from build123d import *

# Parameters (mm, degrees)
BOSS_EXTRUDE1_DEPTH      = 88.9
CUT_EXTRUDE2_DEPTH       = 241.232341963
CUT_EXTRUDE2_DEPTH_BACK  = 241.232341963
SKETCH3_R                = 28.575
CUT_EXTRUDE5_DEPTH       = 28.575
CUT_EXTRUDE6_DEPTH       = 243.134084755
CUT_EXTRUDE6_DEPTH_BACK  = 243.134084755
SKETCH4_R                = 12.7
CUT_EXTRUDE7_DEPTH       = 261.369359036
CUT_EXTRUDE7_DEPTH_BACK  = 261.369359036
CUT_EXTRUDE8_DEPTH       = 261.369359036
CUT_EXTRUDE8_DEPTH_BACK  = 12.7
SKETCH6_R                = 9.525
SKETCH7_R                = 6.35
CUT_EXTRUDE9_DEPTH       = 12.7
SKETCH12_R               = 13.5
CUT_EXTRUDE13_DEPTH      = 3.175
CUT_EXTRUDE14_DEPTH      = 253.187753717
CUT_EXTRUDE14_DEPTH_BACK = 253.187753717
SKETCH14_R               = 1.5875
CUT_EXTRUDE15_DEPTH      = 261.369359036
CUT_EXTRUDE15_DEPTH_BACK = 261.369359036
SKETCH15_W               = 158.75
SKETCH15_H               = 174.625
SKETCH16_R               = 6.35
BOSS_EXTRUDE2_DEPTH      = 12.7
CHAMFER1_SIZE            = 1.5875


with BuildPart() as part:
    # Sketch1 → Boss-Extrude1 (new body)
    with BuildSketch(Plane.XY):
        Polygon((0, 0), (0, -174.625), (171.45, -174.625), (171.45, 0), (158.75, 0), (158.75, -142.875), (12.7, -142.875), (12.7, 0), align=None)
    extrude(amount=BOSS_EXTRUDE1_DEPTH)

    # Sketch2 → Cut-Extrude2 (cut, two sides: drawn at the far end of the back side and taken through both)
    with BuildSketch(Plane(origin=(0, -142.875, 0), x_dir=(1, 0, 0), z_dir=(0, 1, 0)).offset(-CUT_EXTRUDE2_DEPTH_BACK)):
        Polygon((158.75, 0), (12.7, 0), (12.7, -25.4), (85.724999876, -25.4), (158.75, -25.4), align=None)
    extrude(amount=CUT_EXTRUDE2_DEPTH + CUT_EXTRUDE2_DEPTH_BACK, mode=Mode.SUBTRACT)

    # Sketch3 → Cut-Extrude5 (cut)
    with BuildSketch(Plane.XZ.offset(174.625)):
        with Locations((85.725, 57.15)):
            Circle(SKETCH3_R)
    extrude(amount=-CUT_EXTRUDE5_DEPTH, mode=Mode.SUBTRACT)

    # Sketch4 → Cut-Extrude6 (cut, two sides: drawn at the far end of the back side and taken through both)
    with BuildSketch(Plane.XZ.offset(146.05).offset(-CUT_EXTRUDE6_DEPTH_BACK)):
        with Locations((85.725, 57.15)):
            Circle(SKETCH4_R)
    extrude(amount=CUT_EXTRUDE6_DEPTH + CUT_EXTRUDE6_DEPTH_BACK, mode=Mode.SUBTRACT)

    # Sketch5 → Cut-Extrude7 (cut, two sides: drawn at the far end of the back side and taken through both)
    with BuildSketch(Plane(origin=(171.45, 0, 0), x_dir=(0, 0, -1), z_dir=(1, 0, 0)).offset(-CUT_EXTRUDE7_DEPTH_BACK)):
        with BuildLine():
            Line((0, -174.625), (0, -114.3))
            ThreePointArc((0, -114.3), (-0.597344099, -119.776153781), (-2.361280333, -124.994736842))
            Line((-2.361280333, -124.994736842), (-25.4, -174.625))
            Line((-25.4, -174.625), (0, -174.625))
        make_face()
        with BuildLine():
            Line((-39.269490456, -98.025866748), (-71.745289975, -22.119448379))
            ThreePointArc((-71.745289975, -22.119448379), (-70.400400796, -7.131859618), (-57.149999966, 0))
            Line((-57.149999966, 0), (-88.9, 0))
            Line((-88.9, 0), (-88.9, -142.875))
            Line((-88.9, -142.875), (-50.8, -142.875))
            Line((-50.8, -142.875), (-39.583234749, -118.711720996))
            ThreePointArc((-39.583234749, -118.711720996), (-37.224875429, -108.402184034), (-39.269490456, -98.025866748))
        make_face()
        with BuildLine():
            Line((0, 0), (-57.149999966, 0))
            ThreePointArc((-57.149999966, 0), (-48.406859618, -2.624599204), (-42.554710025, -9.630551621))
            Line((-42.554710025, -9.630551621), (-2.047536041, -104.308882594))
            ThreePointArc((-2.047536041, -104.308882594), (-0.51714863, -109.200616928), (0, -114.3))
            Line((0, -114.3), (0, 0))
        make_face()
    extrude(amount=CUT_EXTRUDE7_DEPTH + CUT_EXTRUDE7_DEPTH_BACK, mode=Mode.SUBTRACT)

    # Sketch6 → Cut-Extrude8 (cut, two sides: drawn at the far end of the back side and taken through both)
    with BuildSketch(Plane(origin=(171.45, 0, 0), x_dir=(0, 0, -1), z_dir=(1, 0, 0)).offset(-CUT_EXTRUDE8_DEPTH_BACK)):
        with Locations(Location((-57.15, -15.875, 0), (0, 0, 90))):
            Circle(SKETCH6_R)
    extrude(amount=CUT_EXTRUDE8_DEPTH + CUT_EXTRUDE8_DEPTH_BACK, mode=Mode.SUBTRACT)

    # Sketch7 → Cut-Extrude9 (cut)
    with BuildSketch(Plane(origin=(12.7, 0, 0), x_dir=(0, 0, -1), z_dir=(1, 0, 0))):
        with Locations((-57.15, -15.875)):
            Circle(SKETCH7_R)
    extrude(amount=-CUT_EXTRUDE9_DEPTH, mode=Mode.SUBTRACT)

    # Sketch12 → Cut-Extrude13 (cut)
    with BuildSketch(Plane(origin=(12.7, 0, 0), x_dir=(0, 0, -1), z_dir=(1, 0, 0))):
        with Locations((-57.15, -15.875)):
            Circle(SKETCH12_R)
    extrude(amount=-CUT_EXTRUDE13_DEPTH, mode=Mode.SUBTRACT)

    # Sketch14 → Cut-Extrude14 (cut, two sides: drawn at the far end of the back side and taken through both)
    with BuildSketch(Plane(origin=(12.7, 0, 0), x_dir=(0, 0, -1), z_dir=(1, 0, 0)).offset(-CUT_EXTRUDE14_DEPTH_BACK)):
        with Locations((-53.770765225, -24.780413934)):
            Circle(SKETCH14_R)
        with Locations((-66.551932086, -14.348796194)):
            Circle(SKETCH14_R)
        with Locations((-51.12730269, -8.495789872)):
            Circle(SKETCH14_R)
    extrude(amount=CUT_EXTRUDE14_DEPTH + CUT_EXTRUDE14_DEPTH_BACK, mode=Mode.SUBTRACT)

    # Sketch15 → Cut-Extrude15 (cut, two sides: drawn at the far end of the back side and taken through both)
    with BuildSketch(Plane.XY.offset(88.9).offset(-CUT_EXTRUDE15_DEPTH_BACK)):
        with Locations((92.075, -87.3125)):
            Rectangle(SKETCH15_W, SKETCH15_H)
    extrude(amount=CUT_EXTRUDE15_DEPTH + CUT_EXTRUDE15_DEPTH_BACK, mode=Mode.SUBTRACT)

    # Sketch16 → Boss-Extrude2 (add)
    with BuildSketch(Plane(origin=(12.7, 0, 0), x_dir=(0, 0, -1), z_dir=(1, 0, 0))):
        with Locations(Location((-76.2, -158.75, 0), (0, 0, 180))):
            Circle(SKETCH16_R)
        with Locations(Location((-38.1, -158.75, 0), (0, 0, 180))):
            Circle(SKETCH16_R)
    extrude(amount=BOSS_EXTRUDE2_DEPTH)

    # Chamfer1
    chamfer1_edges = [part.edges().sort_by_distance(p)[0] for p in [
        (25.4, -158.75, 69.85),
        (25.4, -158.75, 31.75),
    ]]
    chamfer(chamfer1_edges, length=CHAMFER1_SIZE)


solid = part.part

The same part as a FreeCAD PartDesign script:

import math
import FreeCAD as App
import Part
import Sketcher
Q = App.Units.Quantity


def edges_at(feature, points):
    """Names of the edges that pass closest to the given points."""
    edges = feature.Shape.Edges
    near = lambda p: min(range(len(edges)), key=lambda i: edges[i].distToShape(Part.Vertex(*p))[0])
    return sorted({f"Edge{near(p) + 1}" for p in points})

doc = App.newDocument("Part")
params = doc.addObject("Spreadsheet::Sheet", "Params")
for row, (alias, value) in enumerate([
    ("sketch1_width", "0.5 in"),
    ("sketch1_width2", "6.75 in"),
    ("sketch1_height", "6.875 in"),
    ("sketch1_height2", "5.625 in"),
    ("pad1_length", "3.5 in"),
    ("sketch2_height", "1 in"),
    ("sketch2_width", "5.75 in"),
    ("sketch3_diameter", "2.25 in"),
    ("pocket2_length", "1.125 in"),
    ("sketch4_diameter", "1 in"),
    ("sketch5_radius", "1 in"),
    ("sketch5_width", "4.5 in"),
    ("sketch5_height", "1.5 in"),
    ("sketch5_radius2", "0.625 in"),
    ("sketch5_height2", "1.25 in"),
    ("sketch6_diameter", "0.75 in"),
    ("pocket5_length", "261.369359 mm"),
    ("pocket5_length2", "0.5 in"),
    ("sketch7_diameter", "0.5 in"),
    ("pocket6_length", "0.5 in"),
    ("pocket7_length", "0.125 in"),
    ("sketch9_diameter", "0.125 in"),
    ("sketch10_width", "6.25 in"),
    ("sketch10_height", "6.875 in"),
    ("sketch11_diameter", "0.5 in"),
    ("pad2_length", "0.5 in"),
    ("chamfer_size", "0.0625 in"),
], start=1):
    params.set(f"A{row}", alias)
    params.set(f"B{row}", "=" + value)
    params.setAlias(f"B{row}", alias)

body = doc.addObject("PartDesign::Body", "Body")

# Sketch on XY plane
sketch1 = body.newObject("Sketcher::SketchObject", "Sketch")
sketch1.AttachmentSupport = (doc.getObject("XY_Plane"), [""])
sketch1.MapMode = "FlatFace"
sketch1.addGeometry([
    Part.LineSegment(App.Vector(0, 0, 0), App.Vector(0, -175, 0)),  # 0
    Part.LineSegment(App.Vector(0, -175, 0), App.Vector(171, -175, 0)),  # 1
    Part.LineSegment(App.Vector(171, -175, 0), App.Vector(171, 0, 0)),  # 2
    Part.LineSegment(App.Vector(171, 0, 0), App.Vector(159, 0, 0)),  # 3
    Part.LineSegment(App.Vector(159, 0, 0), App.Vector(159, -143, 0)),  # 4
    Part.LineSegment(App.Vector(159, -143, 0), App.Vector(13, -143, 0)),  # 5
    Part.LineSegment(App.Vector(13, -143, 0), App.Vector(13, 0, 0)),  # 6
    Part.LineSegment(App.Vector(13, 0, 0), App.Vector(0, 0, 0)),  # 7
], False)
sketch1.addConstraint([
    Sketcher.Constraint("Coincident", 0, 2, 1, 1),
    Sketcher.Constraint("Coincident", 1, 2, 2, 1),
    Sketcher.Constraint("Coincident", 2, 2, 3, 1),
    Sketcher.Constraint("Coincident", 3, 2, 4, 1),
    Sketcher.Constraint("Coincident", 4, 2, 5, 1),
    Sketcher.Constraint("Coincident", 5, 2, 6, 1),
    Sketcher.Constraint("Coincident", 6, 2, 7, 1),
    Sketcher.Constraint("Coincident", 7, 2, 0, 1),
    Sketcher.Constraint("Vertical", 0),
    Sketcher.Constraint("Horizontal", 1),
    Sketcher.Constraint("Vertical", 2),
    Sketcher.Constraint("Horizontal", 3),
    Sketcher.Constraint("Vertical", 4),
    Sketcher.Constraint("Horizontal", 5),
    Sketcher.Constraint("Vertical", 6),
    Sketcher.Constraint("Horizontal", 7),
    Sketcher.Constraint("Coincident", 7, 2, -1, 1),
    Sketcher.Constraint("PointOnObject", 2, 2, -1),
    Sketcher.Constraint("Equal", 3, 7),
    Sketcher.Constraint("DistanceX", 3, 2, 3, 1, Q("0.5 in")),
    Sketcher.Constraint("DistanceX", 1, 1, 1, 2, Q("6.75 in")),
    Sketcher.Constraint("DistanceY", 0, 2, 0, 1, Q("6.875 in")),
    Sketcher.Constraint("DistanceY", 4, 2, 4, 1, Q("5.625 in")),
])
sketch1.setExpression("Constraints[19]", "Params.sketch1_width")
sketch1.setExpression("Constraints[20]", "Params.sketch1_width2")
sketch1.setExpression("Constraints[21]", "Params.sketch1_height")
sketch1.setExpression("Constraints[22]", "Params.sketch1_height2")
pad1 = body.newObject("PartDesign::Pad", "Pad")
pad1.Profile = sketch1
pad1.setExpression("Length", "Params.pad1_length")

# Sketch on XZ plane
sketch2 = body.newObject("Sketcher::SketchObject", "Sketch001")
sketch2.AttachmentSupport = (doc.getObject("XZ_Plane"), [""])
sketch2.MapMode = "FlatFace"
sketch2.AttachmentOffset = App.Placement(App.Vector(0, 0, 5.625 * 25.4), App.Rotation())
sketch2.addGeometry([
    Part.LineSegment(App.Vector(159, 0, 0), App.Vector(13, 0, 0)),
    Part.LineSegment(App.Vector(13, 0, 0), App.Vector(13, 25, 0)),
    Part.LineSegment(App.Vector(13, 25, 0), App.Vector(159, 25, 0)),
    Part.LineSegment(App.Vector(159, 25, 0), App.Vector(159, 0, 0)),
], False)
sketch2.addConstraint([
    Sketcher.Constraint("Coincident", 0, 2, 1, 1),
    Sketcher.Constraint("Coincident", 1, 2, 2, 1),
    Sketcher.Constraint("Coincident", 2, 2, 3, 1),
    Sketcher.Constraint("Coincident", 3, 2, 0, 1),
    Sketcher.Constraint("Horizontal", 0),
    Sketcher.Constraint("Vertical", 1),
    Sketcher.Constraint("Horizontal", 2),
    Sketcher.Constraint("Vertical", 3),
    Sketcher.Constraint("PointOnObject", 0, 2, -1),
    Sketcher.Constraint("DistanceY", 1, 1, 1, 2, Q("1 in")),
    Sketcher.Constraint("DistanceX", 0, 2, 0, 1, Q("5.75 in")),
    Sketcher.Constraint("DistanceX", -1, 1, 0, 2, Q("0.5 in")),
])
sketch2.setExpression("Constraints[9]", "Params.sketch2_height")
sketch2.setExpression("Constraints[10]", "Params.sketch2_width")
pocket1 = body.newObject("PartDesign::Pocket", "Pocket")
pocket1.Profile = sketch2
pocket1.Type = "ThroughAll"
pocket1.Midplane = True

# Sketch on XZ plane
sketch3 = body.newObject("Sketcher::SketchObject", "Sketch002")
sketch3.AttachmentSupport = (doc.getObject("XZ_Plane"), [""])
sketch3.MapMode = "FlatFace"
sketch3.AttachmentOffset = App.Placement(App.Vector(0, 0, 6.875 * 25.4), App.Rotation())
sketch3.addGeometry(Part.Circle(App.Vector(86, 57, 0), App.Vector(0, 0, 1), 29), False)
sketch3.addConstraint([
    Sketcher.Constraint("Diameter", 0, Q("2.25 in")),
    Sketcher.Constraint("DistanceY", -1, 1, 0, 3, Q("2.25 in")),
    Sketcher.Constraint("DistanceX", -1, 1, 0, 3, Q("3.375 in")),
])
sketch3.setExpression("Constraints[0]", "Params.sketch3_diameter")
pocket2 = body.newObject("PartDesign::Pocket", "Pocket001")
pocket2.Profile = sketch3
pocket2.setExpression("Length", "Params.pocket2_length")

# Sketch on XZ plane
sketch4 = body.newObject("Sketcher::SketchObject", "Sketch003")
sketch4.AttachmentSupport = (doc.getObject("XZ_Plane"), [""])
sketch4.MapMode = "FlatFace"
sketch4.AttachmentOffset = App.Placement(App.Vector(0, 0, 5.75 * 25.4), App.Rotation())
sketch4.addGeometry(Part.Circle(App.Vector(86, 57, 0), App.Vector(0, 0, 1), 13), False)
sketch4.addConstraint([
    Sketcher.Constraint("Diameter", 0, Q("1 in")),
    Sketcher.Constraint("DistanceY", -1, 1, 0, 3, Q("2.25 in")),
    Sketcher.Constraint("DistanceX", -1, 1, 0, 3, Q("3.375 in")),
])
sketch4.setExpression("Constraints[0]", "Params.sketch4_diameter")
pocket3 = body.newObject("PartDesign::Pocket", "Pocket002")
pocket3.Profile = sketch4
pocket3.Type = "ThroughAll"
pocket3.Midplane = True

# Sketch on YZ plane
sketch5 = body.newObject("Sketcher::SketchObject", "Sketch004")
sketch5.AttachmentSupport = (doc.getObject("YZ_Plane"), [""])
sketch5.MapMode = "FlatFace"
sketch5.AttachmentOffset = App.Placement(App.Vector(0, 0, 6.75 * 25.4), App.Rotation())
sketch5.addGeometry([
    Part.LineSegment(App.Vector(-175, 0, 0), App.Vector(-114, 0, 0)),  # 0
    Part.ArcOfCircle(Part.Circle(App.Vector(-114, 25, 0), App.Vector(0, 0, 1), 25), math.radians(-115), math.radians(-90)),  # 1
    Part.LineSegment(App.Vector(-125, 2, 0), App.Vector(-175, 25, 0)),  # 2
    Part.LineSegment(App.Vector(-175, 25, 0), App.Vector(-175, 0, 0)),  # 3
    Part.LineSegment(App.Vector(-98, 39, 0), App.Vector(-22, 72, 0)),  # 4
    Part.ArcOfCircle(Part.Circle(App.Vector(-16, 57, 0), App.Vector(0, 0, 1), 16), math.radians(0), math.radians(113)),  # 5
    Part.LineSegment(App.Vector(0, 57, 0), App.Vector(0, 89, 0)),  # 6
    Part.LineSegment(App.Vector(0, 89, 0), App.Vector(-143, 89, 0)),  # 7
    Part.LineSegment(App.Vector(-143, 89, 0), App.Vector(-143, 51, 0)),  # 8
    Part.LineSegment(App.Vector(-143, 51, 0), App.Vector(-119, 40, 0)),  # 9
    Part.ArcOfCircle(Part.Circle(App.Vector(-108, 63, 0), App.Vector(0, 0, 1), 25), math.radians(-115), math.radians(-67)),  # 10
    Part.LineSegment(App.Vector(0, 0, 0), App.Vector(0, 57, 0)),  # 11
    Part.ArcOfCircle(Part.Circle(App.Vector(-16, 57, 0), App.Vector(0, 0, 1), 16), math.radians(-67), math.radians(0)),  # 12
    Part.LineSegment(App.Vector(-10, 43, 0), App.Vector(-104, 2, 0)),  # 13
    Part.ArcOfCircle(Part.Circle(App.Vector(-114, 25, 0), App.Vector(0, 0, 1), 25), math.radians(-90), math.radians(-67)),  # 14
    Part.LineSegment(App.Vector(-114, 0, 0), App.Vector(0, 0, 0)),  # 15
], False)
sketch5.addConstraint([
    Sketcher.Constraint("Tangent", 0, 2, 1, 2),
    Sketcher.Constraint("Tangent", 1, 1, 2, 1),
    Sketcher.Constraint("Coincident", 2, 2, 3, 1),
    Sketcher.Constraint("Coincident", 3, 2, 0, 1),
    Sketcher.Constraint("Tangent", 4, 2, 5, 2),
    Sketcher.Constraint("Tangent", 5, 1, 6, 1),
    Sketcher.Constraint("Coincident", 6, 2, 7, 1),
    Sketcher.Constraint("Coincident", 7, 2, 8, 1),
    Sketcher.Constraint("Coincident", 8, 2, 9, 1),
    Sketcher.Constraint("Tangent", 9, 2, 10, 1),
    Sketcher.Constraint("Tangent", 10, 2, 4, 1),
    Sketcher.Constraint("Tangent", 11, 2, 12, 2),
    Sketcher.Constraint("Tangent", 12, 1, 13, 1),
    Sketcher.Constraint("Tangent", 13, 2, 14, 2),
    Sketcher.Constraint("Tangent", 14, 1, 15, 1),
    Sketcher.Constraint("Coincident", 15, 2, 11, 1),
    Sketcher.Constraint("Horizontal", 0),
    Sketcher.Constraint("Vertical", 3),
    Sketcher.Constraint("Vertical", 6),
    Sketcher.Constraint("Horizontal", 7),
    Sketcher.Constraint("Vertical", 8),
    Sketcher.Constraint("Vertical", 11),
    Sketcher.Constraint("Horizontal", 15),
    Sketcher.Constraint("Coincident", 15, 2, -1, 1),
    Sketcher.Constraint("Coincident", 12, 3, 5, 3),
    Sketcher.Constraint("Coincident", 14, 3, 1, 3),
    Sketcher.Constraint("Equal", 1, 10),
    Sketcher.Constraint("Equal", 5, 12),
    Sketcher.Constraint("Equal", 10, 14),
    Sketcher.Constraint("Parallel", 2, 9),
    Sketcher.Constraint("Parallel", 4, 13),
    Sketcher.Constraint("Horizontal", 14, 3, 2, 2),
    Sketcher.Constraint("Radius", 1, Q("1 in")),
    Sketcher.Constraint("DistanceX", 15, 1, 15, 2, Q("4.5 in")),
    Sketcher.Constraint("DistanceY", 8, 2, 8, 1, Q("1.5 in")),
    Sketcher.Constraint("DistanceY", -1, 1, 8, 2, Q("2 in")),
    Sketcher.Constraint("Radius", 5, Q("0.625 in")),
    Sketcher.Constraint("DistanceY", 6, 1, 6, 2, Q("1.25 in")),
    Sketcher.Constraint("DistanceX", 0, 1, 0, 2, Q("2.375 in")),
    Sketcher.Constraint("DistanceX", 7, 2, 7, 1, Q("5.625 in")),
])
sketch5.setExpression("Constraints[32]", "Params.sketch5_radius")
sketch5.setExpression("Constraints[33]", "Params.sketch5_width")
sketch5.setExpression("Constraints[34]", "Params.sketch5_height")
sketch5.setExpression("Constraints[36]", "Params.sketch5_radius2")
sketch5.setExpression("Constraints[37]", "Params.sketch5_height2")
pocket4 = body.newObject("PartDesign::Pocket", "Pocket003")
pocket4.Profile = sketch5
pocket4.Type = "ThroughAll"
pocket4.Midplane = True

# Sketch on YZ plane
sketch6 = body.newObject("Sketcher::SketchObject", "Sketch005")
sketch6.AttachmentSupport = (doc.getObject("YZ_Plane"), [""])
sketch6.MapMode = "FlatFace"
sketch6.AttachmentOffset = App.Placement(App.Vector(0, 0, 6.75 * 25.4), App.Rotation())
sketch6.addGeometry(Part.Circle(App.Vector(-16, 57, 0), App.Vector(0, 0, 1), 10), False)
sketch6.addConstraint([
    Sketcher.Constraint("Diameter", 0, Q("0.75 in")),
    Sketcher.Constraint("DistanceY", -1, 1, 0, 3, Q("2.25 in")),
    Sketcher.Constraint("DistanceX", 0, 3, -1, 1, Q("0.625 in")),
])
sketch6.setExpression("Constraints[0]", "Params.sketch6_diameter")
pocket5 = body.newObject("PartDesign::Pocket", "Pocket004")
pocket5.Profile = sketch6
pocket5.Type = "TwoLengths"
pocket5.setExpression("Length", "Params.pocket5_length")
pocket5.setExpression("Length2", "Params.pocket5_length2")
pocket5.Reversed = True

# Sketch on YZ plane
sketch7 = body.newObject("Sketcher::SketchObject", "Sketch006")
sketch7.AttachmentSupport = (doc.getObject("YZ_Plane"), [""])
sketch7.MapMode = "FlatFace"
sketch7.AttachmentOffset = App.Placement(App.Vector(0, 0, 0.5 * 25.4), App.Rotation())
sketch7.addGeometry(Part.Circle(App.Vector(-16, 57, 0), App.Vector(0, 0, 1), 6), False)
sketch7.addConstraint([
    Sketcher.Constraint("Diameter", 0, Q("0.5 in")),
    Sketcher.Constraint("DistanceY", -1, 1, 0, 3, Q("2.25 in")),
    Sketcher.Constraint("DistanceX", 0, 3, -1, 1, Q("0.625 in")),
])
sketch7.setExpression("Constraints[0]", "Params.sketch7_diameter")
pocket6 = body.newObject("PartDesign::Pocket", "Pocket005")
pocket6.Profile = sketch7
pocket6.setExpression("Length", "Params.pocket6_length")

# Sketch on YZ plane
sketch8 = body.newObject("Sketcher::SketchObject", "Sketch007")
sketch8.AttachmentSupport = (doc.getObject("YZ_Plane"), [""])
sketch8.MapMode = "FlatFace"
sketch8.AttachmentOffset = App.Placement(App.Vector(0, 0, 0.5 * 25.4), App.Rotation())
sketch8.addGeometry(Part.Circle(App.Vector(-16, 57, 0), App.Vector(0, 0, 1), 14), False)
sketch8.addConstraint([
    Sketcher.Constraint("Diameter", 0, 27.0),
    Sketcher.Constraint("DistanceY", -1, 1, 0, 3, Q("2.25 in")),
    Sketcher.Constraint("DistanceX", 0, 3, -1, 1, Q("0.625 in")),
])
pocket7 = body.newObject("PartDesign::Pocket", "Pocket006")
pocket7.Profile = sketch8
pocket7.setExpression("Length", "Params.pocket7_length")

# Sketch on YZ plane
sketch9 = body.newObject("Sketcher::SketchObject", "Sketch008")
sketch9.AttachmentSupport = (doc.getObject("YZ_Plane"), [""])
sketch9.MapMode = "FlatFace"
sketch9.AttachmentOffset = App.Placement(App.Vector(0, 0, 0.5 * 25.4), App.Rotation())
sketch9.addGeometry([
    Part.Circle(App.Vector(-24.8, 53.8, 0), App.Vector(0, 0, 1), 1.6),
    Part.Circle(App.Vector(-14.3, 66.6, 0), App.Vector(0, 0, 1), 1.6),
    Part.Circle(App.Vector(-8.5, 51.1, 0), App.Vector(0, 0, 1), 1.6),
], False)
sketch9.addConstraint([
    Sketcher.Constraint("Equal", 0, 1),
    Sketcher.Constraint("Equal", 1, 2),
    Sketcher.Constraint("Diameter", 0, Q("0.125 in")),
    Sketcher.Constraint("DistanceX", 2, 3, -1, 1, 8.49579),
    Sketcher.Constraint("DistanceY", 2, 3, 1, 3, 15.424629),
    Sketcher.Constraint("DistanceX", 0, 3, -1, 1, 24.780414),
    Sketcher.Constraint("DistanceY", -1, 1, 0, 3, 53.770765),
    Sketcher.Constraint("DistanceX", 1, 3, -1, 1, 14.348796),
    Sketcher.Constraint("DistanceY", -1, 1, 1, 3, 66.551932),
])
sketch9.setExpression("Constraints[2]", "Params.sketch9_diameter")
pocket8 = body.newObject("PartDesign::Pocket", "Pocket007")
pocket8.Profile = sketch9
pocket8.Type = "ThroughAll"
pocket8.Midplane = True

# Sketch on XY plane
sketch10 = body.newObject("Sketcher::SketchObject", "Sketch009")
sketch10.AttachmentSupport = (doc.getObject("XY_Plane"), [""])
sketch10.MapMode = "FlatFace"
sketch10.AttachmentOffset = App.Placement(App.Vector(0, 0, 3.5 * 25.4), App.Rotation())
sketch10.addGeometry([
    Part.LineSegment(App.Vector(13, 0, 0), App.Vector(13, -175, 0)),
    Part.LineSegment(App.Vector(13, -175, 0), App.Vector(171, -175, 0)),
    Part.LineSegment(App.Vector(171, -175, 0), App.Vector(171, 0, 0)),
    Part.LineSegment(App.Vector(171, 0, 0), App.Vector(13, 0, 0)),
], False)
sketch10.addConstraint([
    Sketcher.Constraint("Coincident", 0, 2, 1, 1),
    Sketcher.Constraint("Coincident", 1, 2, 2, 1),
    Sketcher.Constraint("Coincident", 2, 2, 3, 1),
    Sketcher.Constraint("Coincident", 3, 2, 0, 1),
    Sketcher.Constraint("Vertical", 0),
    Sketcher.Constraint("Horizontal", 1),
    Sketcher.Constraint("Vertical", 2),
    Sketcher.Constraint("Horizontal", 3),
    Sketcher.Constraint("PointOnObject", 2, 2, -1),
    Sketcher.Constraint("DistanceX", 1, 1, 1, 2, Q("6.25 in")),
    Sketcher.Constraint("DistanceX", -1, 1, 0, 2, Q("0.5 in")),
    Sketcher.Constraint("DistanceY", 0, 2, 0, 1, Q("6.875 in")),
])
sketch10.setExpression("Constraints[9]", "Params.sketch10_width")
sketch10.setExpression("Constraints[11]", "Params.sketch10_height")
pocket9 = body.newObject("PartDesign::Pocket", "Pocket008")
pocket9.Profile = sketch10
pocket9.Type = "ThroughAll"
pocket9.Midplane = True

# Sketch on YZ plane
sketch11 = body.newObject("Sketcher::SketchObject", "Sketch010")
sketch11.AttachmentSupport = (doc.getObject("YZ_Plane"), [""])
sketch11.MapMode = "FlatFace"
sketch11.AttachmentOffset = App.Placement(App.Vector(0, 0, 0.5 * 25.4), App.Rotation())
sketch11.addGeometry([
    Part.Circle(App.Vector(-159, 76, 0), App.Vector(0, 0, 1), 6),
    Part.Circle(App.Vector(-159, 38, 0), App.Vector(0, 0, 1), 6),
], False)
sketch11.addConstraint([
    Sketcher.Constraint("Equal", 0, 1),
    Sketcher.Constraint("Vertical", 0, 3, 1, 3),
    Sketcher.Constraint("Diameter", 0, Q("0.5 in")),
    Sketcher.Constraint("DistanceY", -1, 1, 0, 3, Q("3 in")),
    Sketcher.Constraint("DistanceY", -1, 1, 1, 3, Q("1.5 in")),
    Sketcher.Constraint("DistanceX", 0, 3, -1, 1, Q("6.25 in")),
])
sketch11.setExpression("Constraints[2]", "Params.sketch11_diameter")
pad2 = body.newObject("PartDesign::Pad", "Pad001")
pad2.Profile = sketch11
pad2.setExpression("Length", "Params.pad2_length")
doc.recompute()

chamfer = body.newObject("PartDesign::Chamfer", "Chamfer")
chamfer.Base = (pad2, edges_at(pad2, [(25.4, -158.75, 69.85), (25.4, -158.75, 31.75)]))
chamfer.setExpression("Size", "Params.chamfer_size")

doc.recompute()
